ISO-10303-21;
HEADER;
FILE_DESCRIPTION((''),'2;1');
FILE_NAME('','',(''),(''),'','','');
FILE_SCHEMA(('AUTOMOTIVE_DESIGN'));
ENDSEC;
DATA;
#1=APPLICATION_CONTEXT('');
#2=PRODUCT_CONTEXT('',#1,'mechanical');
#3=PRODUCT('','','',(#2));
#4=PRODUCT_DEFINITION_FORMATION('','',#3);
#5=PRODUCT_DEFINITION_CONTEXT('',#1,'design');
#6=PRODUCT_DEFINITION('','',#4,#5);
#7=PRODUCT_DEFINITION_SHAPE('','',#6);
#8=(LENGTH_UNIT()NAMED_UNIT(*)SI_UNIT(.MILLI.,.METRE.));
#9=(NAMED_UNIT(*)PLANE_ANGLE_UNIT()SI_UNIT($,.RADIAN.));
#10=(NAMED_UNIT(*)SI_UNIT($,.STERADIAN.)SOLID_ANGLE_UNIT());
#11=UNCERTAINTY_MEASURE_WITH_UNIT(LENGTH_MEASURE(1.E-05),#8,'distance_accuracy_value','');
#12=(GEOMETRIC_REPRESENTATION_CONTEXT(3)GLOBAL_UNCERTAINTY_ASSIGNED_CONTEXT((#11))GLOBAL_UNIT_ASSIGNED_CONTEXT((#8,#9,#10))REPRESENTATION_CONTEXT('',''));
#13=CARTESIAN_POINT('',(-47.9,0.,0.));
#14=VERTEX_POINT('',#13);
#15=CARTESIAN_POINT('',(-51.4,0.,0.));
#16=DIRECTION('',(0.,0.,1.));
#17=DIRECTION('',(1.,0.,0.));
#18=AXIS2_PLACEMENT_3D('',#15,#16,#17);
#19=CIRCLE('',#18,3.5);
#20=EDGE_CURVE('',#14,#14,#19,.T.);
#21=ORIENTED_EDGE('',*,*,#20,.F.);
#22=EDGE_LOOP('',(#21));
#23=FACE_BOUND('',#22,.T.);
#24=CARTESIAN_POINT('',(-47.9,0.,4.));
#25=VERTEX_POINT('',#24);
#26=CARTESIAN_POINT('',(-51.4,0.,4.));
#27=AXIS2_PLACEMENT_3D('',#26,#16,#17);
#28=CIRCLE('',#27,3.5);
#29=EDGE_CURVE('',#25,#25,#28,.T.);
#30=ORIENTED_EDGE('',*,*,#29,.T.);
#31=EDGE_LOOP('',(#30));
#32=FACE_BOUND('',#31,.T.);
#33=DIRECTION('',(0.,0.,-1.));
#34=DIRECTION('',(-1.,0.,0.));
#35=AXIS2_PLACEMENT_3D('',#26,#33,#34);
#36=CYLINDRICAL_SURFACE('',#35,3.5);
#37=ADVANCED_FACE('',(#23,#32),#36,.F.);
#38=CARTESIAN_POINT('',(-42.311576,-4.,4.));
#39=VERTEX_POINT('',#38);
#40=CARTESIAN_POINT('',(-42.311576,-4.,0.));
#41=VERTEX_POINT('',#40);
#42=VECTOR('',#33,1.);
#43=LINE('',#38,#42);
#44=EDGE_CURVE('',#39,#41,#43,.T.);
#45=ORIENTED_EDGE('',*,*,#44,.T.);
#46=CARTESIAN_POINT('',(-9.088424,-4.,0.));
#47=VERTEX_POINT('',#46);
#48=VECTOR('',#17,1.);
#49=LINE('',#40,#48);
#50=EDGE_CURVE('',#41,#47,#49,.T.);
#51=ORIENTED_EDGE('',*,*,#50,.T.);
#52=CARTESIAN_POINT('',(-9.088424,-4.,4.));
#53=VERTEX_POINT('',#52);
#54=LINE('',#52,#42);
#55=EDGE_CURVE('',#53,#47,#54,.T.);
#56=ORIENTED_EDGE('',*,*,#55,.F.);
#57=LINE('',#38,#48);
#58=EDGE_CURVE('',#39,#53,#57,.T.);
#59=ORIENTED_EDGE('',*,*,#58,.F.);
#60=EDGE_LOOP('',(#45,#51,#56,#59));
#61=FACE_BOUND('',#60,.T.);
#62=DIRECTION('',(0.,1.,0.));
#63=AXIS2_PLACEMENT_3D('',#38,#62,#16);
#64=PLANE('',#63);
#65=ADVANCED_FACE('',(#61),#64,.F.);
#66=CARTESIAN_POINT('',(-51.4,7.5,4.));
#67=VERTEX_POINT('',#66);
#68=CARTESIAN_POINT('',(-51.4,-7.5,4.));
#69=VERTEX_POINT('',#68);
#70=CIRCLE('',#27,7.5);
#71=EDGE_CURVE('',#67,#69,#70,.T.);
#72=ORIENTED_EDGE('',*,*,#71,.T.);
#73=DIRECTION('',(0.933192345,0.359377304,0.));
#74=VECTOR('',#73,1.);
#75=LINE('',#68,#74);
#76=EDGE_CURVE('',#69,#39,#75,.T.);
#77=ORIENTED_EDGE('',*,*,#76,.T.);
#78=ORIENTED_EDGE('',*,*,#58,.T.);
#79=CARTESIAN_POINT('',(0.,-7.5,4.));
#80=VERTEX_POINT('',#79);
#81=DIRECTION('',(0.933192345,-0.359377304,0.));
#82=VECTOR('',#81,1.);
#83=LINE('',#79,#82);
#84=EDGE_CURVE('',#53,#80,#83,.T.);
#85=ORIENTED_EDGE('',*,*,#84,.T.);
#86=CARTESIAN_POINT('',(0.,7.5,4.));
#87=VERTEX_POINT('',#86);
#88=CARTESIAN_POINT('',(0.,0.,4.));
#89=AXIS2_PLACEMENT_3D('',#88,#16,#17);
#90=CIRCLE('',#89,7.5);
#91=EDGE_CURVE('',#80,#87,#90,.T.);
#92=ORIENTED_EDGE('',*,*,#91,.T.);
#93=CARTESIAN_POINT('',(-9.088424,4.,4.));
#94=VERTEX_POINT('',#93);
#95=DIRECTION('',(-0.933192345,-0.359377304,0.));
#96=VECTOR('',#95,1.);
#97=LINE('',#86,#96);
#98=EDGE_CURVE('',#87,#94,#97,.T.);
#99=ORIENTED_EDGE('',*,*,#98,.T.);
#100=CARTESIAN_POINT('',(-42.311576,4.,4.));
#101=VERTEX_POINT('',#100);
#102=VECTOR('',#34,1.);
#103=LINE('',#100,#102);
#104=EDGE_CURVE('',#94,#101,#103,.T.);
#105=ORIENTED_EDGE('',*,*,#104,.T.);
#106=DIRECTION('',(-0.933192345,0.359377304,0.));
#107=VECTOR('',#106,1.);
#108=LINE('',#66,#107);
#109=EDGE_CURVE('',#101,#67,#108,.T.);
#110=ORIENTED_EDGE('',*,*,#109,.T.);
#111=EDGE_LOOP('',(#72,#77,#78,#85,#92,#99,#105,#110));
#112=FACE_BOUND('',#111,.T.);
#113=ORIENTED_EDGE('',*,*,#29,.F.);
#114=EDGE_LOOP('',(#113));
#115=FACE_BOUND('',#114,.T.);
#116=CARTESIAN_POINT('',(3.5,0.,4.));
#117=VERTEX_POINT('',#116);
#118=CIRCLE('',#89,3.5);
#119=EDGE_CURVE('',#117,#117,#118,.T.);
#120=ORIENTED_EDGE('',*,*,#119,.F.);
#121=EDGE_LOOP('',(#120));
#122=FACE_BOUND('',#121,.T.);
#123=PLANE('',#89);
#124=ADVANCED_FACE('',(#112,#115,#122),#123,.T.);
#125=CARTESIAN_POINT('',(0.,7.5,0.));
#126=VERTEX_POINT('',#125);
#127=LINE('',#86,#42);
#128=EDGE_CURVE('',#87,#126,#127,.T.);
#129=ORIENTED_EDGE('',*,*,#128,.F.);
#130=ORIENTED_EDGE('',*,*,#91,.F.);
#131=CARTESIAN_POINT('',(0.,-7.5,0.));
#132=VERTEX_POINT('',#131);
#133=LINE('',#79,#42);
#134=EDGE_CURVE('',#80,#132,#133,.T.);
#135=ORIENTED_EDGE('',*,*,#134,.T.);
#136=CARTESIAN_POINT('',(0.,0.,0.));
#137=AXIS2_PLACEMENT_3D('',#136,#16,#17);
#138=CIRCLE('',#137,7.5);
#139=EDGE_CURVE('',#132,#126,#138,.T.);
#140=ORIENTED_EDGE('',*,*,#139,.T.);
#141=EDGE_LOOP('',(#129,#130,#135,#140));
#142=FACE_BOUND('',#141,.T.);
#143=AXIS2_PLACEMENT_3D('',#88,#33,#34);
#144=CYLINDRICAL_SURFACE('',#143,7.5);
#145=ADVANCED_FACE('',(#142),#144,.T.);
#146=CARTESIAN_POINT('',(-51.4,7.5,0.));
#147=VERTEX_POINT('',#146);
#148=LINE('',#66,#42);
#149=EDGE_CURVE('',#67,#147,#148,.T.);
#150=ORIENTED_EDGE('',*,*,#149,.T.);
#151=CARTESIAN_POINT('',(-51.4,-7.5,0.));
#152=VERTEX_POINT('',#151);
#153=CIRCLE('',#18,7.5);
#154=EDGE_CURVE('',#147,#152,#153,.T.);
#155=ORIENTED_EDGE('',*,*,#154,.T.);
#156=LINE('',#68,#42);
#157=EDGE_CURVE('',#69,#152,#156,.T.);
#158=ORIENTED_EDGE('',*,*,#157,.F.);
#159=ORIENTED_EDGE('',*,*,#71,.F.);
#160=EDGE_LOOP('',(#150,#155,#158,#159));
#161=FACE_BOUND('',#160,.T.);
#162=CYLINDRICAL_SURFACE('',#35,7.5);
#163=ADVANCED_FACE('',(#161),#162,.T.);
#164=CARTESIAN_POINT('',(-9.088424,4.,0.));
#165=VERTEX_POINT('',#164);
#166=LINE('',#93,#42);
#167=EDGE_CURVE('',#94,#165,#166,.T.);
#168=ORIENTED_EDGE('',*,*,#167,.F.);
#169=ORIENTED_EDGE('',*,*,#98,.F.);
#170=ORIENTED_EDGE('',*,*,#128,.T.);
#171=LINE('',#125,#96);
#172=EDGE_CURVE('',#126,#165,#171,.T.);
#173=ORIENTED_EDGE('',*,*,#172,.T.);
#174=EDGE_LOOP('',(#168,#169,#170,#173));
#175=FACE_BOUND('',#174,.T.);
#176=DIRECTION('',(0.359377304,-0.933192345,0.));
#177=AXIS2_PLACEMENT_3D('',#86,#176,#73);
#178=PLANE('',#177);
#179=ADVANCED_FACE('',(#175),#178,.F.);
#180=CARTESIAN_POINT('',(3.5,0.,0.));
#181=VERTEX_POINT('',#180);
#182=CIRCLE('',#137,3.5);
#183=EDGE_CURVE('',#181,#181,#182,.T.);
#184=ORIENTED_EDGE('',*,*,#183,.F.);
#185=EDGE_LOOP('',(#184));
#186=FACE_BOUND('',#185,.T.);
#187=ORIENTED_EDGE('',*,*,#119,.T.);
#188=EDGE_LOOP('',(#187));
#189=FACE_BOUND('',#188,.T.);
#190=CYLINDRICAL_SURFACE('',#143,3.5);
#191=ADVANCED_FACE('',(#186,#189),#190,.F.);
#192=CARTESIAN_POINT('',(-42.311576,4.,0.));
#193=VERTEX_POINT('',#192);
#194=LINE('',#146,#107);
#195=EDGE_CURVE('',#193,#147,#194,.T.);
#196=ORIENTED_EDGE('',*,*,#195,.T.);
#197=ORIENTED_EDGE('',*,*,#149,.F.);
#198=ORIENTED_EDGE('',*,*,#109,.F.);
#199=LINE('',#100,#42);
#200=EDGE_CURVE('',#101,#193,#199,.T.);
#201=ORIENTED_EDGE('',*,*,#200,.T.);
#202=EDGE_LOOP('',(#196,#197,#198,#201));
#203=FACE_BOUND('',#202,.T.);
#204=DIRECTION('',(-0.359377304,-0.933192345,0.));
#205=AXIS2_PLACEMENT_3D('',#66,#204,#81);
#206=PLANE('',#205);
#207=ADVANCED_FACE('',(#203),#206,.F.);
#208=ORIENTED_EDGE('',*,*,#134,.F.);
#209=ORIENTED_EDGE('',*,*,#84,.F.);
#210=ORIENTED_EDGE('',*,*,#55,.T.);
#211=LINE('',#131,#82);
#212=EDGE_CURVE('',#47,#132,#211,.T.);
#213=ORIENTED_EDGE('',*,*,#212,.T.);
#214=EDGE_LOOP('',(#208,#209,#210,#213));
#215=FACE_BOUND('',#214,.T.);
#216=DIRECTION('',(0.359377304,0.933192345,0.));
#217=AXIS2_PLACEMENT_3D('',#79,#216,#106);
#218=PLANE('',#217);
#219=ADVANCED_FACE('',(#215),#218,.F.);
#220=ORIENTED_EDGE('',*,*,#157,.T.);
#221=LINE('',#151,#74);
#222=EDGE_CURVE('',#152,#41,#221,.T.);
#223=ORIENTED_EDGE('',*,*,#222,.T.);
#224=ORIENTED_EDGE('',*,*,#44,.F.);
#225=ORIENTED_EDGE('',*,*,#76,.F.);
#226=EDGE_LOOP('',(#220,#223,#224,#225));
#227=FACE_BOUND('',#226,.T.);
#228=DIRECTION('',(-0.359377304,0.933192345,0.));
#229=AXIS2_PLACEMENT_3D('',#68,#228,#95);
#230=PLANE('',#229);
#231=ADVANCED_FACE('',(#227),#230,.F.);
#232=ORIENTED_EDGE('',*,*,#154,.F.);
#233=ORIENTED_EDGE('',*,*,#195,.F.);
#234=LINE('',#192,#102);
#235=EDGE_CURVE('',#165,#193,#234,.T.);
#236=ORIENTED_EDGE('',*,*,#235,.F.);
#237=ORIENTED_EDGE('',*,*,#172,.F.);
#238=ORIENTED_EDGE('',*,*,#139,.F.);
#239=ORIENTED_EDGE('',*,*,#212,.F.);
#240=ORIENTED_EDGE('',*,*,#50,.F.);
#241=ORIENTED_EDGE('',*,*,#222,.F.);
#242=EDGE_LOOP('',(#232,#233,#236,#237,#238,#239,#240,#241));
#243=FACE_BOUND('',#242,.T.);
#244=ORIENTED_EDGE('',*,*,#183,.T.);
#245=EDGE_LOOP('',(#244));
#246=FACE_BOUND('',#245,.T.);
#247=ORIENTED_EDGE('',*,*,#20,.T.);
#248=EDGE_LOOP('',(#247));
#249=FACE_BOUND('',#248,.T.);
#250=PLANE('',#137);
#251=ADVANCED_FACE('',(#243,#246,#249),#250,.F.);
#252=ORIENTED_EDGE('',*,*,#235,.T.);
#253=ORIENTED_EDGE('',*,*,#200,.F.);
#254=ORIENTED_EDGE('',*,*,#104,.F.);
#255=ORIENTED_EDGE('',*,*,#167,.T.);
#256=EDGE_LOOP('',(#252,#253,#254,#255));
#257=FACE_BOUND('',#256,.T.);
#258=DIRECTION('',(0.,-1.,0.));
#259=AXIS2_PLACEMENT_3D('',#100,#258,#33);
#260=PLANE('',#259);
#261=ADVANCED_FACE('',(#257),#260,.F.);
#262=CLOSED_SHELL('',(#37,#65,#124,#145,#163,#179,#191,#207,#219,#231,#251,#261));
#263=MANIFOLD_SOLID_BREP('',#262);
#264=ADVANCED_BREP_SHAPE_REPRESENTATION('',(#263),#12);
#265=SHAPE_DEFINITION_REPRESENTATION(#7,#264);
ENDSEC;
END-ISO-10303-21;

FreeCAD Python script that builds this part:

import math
import FreeCAD as App
import Part
import Sketcher

doc = App.newDocument("Part")
params = doc.addObject("Spreadsheet::Sheet", "Params")
for row, (alias, value) in enumerate([
    ("sketch1_diameter", "7 mm"),
    ("sketch1_radius", "7.5 mm"),
    ("pad1_length", "4 mm"),
], start=1):
    params.set(f"A{row}", alias)
    params.set(f"B{row}", "=" + value)
    params.setAlias(f"B{row}", alias)

body = doc.addObject("PartDesign::Body", "Body")

sketch1 = body.newObject("Sketcher::SketchObject", "Sketch")
sketch1.AttachmentSupport = (doc.getObject("XY_Plane"), [""])
sketch1.MapMode = "FlatFace"
sketch1.addGeometry([
    Part.LineSegment(App.Vector(0, 7.5, 0), App.Vector(-9.088424, 4, 0)),
    Part.LineSegment(App.Vector(-9.088424, 4, 0), App.Vector(-42.311576, 4, 0)),
    Part.LineSegment(App.Vector(-42.311576, 4, 0), App.Vector(-51.4, 7.5, 0)),
    Part.ArcOfCircle(Part.Circle(App.Vector(-51.4, 0, 0), App.Vector(0, 0, 1), 7.5), math.radians(90), math.radians(270)),
    Part.LineSegment(App.Vector(-51.4, -7.5, 0), App.Vector(-42.311576, -4, 0)),
    Part.LineSegment(App.Vector(-42.311576, -4, 0), App.Vector(-9.088424, -4, 0)),
    Part.LineSegment(App.Vector(-9.088424, -4, 0), App.Vector(0, -7.5, 0)),
    Part.ArcOfCircle(Part.Circle(App.Vector(0, 0, 0), App.Vector(0, 0, 1), 7.5), math.radians(-90), math.radians(90)),
    Part.Circle(App.Vector(-51.4, 0, 0), App.Vector(0, 0, 1), 3.5),
    Part.Circle(App.Vector(0, 0, 0), App.Vector(0, 0, 1), 3.5),
], False)
sketch1.addConstraint([
    Sketcher.Constraint("Coincident", 0, 2, 1, 1),
    Sketcher.Constraint("Coincident", 1, 2, 2, 1),
    Sketcher.Constraint("Coincident", 2, 2, 3, 1),
    Sketcher.Constraint("Coincident", 3, 2, 4, 1),
    Sketcher.Constraint("Coincident", 4, 2, 5, 1),
    Sketcher.Constraint("Coincident", 5, 2, 6, 1),
    Sketcher.Constraint("Coincident", 6, 2, 7, 1),
    Sketcher.Constraint("Coincident", 7, 2, 0, 1),
    Sketcher.Constraint("Horizontal", 1),
    Sketcher.Constraint("Horizontal", 5),
    Sketcher.Constraint("Coincident", 7, 3, -1, 1),
    Sketcher.Constraint("Coincident", 9, 3, -1, 1),
    Sketcher.Constraint("Coincident", 8, 3, 3, 3),
    Sketcher.Constraint("Equal", 3, 7),
    Sketcher.Constraint("Equal", 8, 9),
    Sketcher.Constraint("Symmetric", 2, 2, 3, 2, -1),
    Sketcher.Constraint("Symmetric", 1, 2, 4, 2, -1),
    Sketcher.Constraint("PointOnObject", 6, 2, -2),
    Sketcher.Constraint("PointOnObject", 7, 2, -2),
    Sketcher.Constraint("Parallel", 0, 4),
    Sketcher.Constraint("Parallel", 2, 6),
    Sketcher.Constraint("Vertical", 8, 3, 2, 2),
    Sketcher.Constraint("Diameter", 8, 7.0),
    Sketcher.Constraint("Radius", 3, 7.5),
    Sketcher.Constraint("DistanceY", -1, 1, 0, 2, 4.0),
    Sketcher.Constraint("DistanceX", 3, 3, -1, 1, 51.4),
    Sketcher.Constraint("DistanceX", 1, 2, 1, 1, 33.223153),
])
sketch1.setExpression("Constraints[22]", "Params.sketch1_diameter")
sketch1.setExpression("Constraints[23]", "Params.sketch1_radius")
pad1 = body.newObject("PartDesign::Pad", "Pad")
pad1.Profile = sketch1
pad1.setExpression("Length", "Params.pad1_length")

doc.recompute()
